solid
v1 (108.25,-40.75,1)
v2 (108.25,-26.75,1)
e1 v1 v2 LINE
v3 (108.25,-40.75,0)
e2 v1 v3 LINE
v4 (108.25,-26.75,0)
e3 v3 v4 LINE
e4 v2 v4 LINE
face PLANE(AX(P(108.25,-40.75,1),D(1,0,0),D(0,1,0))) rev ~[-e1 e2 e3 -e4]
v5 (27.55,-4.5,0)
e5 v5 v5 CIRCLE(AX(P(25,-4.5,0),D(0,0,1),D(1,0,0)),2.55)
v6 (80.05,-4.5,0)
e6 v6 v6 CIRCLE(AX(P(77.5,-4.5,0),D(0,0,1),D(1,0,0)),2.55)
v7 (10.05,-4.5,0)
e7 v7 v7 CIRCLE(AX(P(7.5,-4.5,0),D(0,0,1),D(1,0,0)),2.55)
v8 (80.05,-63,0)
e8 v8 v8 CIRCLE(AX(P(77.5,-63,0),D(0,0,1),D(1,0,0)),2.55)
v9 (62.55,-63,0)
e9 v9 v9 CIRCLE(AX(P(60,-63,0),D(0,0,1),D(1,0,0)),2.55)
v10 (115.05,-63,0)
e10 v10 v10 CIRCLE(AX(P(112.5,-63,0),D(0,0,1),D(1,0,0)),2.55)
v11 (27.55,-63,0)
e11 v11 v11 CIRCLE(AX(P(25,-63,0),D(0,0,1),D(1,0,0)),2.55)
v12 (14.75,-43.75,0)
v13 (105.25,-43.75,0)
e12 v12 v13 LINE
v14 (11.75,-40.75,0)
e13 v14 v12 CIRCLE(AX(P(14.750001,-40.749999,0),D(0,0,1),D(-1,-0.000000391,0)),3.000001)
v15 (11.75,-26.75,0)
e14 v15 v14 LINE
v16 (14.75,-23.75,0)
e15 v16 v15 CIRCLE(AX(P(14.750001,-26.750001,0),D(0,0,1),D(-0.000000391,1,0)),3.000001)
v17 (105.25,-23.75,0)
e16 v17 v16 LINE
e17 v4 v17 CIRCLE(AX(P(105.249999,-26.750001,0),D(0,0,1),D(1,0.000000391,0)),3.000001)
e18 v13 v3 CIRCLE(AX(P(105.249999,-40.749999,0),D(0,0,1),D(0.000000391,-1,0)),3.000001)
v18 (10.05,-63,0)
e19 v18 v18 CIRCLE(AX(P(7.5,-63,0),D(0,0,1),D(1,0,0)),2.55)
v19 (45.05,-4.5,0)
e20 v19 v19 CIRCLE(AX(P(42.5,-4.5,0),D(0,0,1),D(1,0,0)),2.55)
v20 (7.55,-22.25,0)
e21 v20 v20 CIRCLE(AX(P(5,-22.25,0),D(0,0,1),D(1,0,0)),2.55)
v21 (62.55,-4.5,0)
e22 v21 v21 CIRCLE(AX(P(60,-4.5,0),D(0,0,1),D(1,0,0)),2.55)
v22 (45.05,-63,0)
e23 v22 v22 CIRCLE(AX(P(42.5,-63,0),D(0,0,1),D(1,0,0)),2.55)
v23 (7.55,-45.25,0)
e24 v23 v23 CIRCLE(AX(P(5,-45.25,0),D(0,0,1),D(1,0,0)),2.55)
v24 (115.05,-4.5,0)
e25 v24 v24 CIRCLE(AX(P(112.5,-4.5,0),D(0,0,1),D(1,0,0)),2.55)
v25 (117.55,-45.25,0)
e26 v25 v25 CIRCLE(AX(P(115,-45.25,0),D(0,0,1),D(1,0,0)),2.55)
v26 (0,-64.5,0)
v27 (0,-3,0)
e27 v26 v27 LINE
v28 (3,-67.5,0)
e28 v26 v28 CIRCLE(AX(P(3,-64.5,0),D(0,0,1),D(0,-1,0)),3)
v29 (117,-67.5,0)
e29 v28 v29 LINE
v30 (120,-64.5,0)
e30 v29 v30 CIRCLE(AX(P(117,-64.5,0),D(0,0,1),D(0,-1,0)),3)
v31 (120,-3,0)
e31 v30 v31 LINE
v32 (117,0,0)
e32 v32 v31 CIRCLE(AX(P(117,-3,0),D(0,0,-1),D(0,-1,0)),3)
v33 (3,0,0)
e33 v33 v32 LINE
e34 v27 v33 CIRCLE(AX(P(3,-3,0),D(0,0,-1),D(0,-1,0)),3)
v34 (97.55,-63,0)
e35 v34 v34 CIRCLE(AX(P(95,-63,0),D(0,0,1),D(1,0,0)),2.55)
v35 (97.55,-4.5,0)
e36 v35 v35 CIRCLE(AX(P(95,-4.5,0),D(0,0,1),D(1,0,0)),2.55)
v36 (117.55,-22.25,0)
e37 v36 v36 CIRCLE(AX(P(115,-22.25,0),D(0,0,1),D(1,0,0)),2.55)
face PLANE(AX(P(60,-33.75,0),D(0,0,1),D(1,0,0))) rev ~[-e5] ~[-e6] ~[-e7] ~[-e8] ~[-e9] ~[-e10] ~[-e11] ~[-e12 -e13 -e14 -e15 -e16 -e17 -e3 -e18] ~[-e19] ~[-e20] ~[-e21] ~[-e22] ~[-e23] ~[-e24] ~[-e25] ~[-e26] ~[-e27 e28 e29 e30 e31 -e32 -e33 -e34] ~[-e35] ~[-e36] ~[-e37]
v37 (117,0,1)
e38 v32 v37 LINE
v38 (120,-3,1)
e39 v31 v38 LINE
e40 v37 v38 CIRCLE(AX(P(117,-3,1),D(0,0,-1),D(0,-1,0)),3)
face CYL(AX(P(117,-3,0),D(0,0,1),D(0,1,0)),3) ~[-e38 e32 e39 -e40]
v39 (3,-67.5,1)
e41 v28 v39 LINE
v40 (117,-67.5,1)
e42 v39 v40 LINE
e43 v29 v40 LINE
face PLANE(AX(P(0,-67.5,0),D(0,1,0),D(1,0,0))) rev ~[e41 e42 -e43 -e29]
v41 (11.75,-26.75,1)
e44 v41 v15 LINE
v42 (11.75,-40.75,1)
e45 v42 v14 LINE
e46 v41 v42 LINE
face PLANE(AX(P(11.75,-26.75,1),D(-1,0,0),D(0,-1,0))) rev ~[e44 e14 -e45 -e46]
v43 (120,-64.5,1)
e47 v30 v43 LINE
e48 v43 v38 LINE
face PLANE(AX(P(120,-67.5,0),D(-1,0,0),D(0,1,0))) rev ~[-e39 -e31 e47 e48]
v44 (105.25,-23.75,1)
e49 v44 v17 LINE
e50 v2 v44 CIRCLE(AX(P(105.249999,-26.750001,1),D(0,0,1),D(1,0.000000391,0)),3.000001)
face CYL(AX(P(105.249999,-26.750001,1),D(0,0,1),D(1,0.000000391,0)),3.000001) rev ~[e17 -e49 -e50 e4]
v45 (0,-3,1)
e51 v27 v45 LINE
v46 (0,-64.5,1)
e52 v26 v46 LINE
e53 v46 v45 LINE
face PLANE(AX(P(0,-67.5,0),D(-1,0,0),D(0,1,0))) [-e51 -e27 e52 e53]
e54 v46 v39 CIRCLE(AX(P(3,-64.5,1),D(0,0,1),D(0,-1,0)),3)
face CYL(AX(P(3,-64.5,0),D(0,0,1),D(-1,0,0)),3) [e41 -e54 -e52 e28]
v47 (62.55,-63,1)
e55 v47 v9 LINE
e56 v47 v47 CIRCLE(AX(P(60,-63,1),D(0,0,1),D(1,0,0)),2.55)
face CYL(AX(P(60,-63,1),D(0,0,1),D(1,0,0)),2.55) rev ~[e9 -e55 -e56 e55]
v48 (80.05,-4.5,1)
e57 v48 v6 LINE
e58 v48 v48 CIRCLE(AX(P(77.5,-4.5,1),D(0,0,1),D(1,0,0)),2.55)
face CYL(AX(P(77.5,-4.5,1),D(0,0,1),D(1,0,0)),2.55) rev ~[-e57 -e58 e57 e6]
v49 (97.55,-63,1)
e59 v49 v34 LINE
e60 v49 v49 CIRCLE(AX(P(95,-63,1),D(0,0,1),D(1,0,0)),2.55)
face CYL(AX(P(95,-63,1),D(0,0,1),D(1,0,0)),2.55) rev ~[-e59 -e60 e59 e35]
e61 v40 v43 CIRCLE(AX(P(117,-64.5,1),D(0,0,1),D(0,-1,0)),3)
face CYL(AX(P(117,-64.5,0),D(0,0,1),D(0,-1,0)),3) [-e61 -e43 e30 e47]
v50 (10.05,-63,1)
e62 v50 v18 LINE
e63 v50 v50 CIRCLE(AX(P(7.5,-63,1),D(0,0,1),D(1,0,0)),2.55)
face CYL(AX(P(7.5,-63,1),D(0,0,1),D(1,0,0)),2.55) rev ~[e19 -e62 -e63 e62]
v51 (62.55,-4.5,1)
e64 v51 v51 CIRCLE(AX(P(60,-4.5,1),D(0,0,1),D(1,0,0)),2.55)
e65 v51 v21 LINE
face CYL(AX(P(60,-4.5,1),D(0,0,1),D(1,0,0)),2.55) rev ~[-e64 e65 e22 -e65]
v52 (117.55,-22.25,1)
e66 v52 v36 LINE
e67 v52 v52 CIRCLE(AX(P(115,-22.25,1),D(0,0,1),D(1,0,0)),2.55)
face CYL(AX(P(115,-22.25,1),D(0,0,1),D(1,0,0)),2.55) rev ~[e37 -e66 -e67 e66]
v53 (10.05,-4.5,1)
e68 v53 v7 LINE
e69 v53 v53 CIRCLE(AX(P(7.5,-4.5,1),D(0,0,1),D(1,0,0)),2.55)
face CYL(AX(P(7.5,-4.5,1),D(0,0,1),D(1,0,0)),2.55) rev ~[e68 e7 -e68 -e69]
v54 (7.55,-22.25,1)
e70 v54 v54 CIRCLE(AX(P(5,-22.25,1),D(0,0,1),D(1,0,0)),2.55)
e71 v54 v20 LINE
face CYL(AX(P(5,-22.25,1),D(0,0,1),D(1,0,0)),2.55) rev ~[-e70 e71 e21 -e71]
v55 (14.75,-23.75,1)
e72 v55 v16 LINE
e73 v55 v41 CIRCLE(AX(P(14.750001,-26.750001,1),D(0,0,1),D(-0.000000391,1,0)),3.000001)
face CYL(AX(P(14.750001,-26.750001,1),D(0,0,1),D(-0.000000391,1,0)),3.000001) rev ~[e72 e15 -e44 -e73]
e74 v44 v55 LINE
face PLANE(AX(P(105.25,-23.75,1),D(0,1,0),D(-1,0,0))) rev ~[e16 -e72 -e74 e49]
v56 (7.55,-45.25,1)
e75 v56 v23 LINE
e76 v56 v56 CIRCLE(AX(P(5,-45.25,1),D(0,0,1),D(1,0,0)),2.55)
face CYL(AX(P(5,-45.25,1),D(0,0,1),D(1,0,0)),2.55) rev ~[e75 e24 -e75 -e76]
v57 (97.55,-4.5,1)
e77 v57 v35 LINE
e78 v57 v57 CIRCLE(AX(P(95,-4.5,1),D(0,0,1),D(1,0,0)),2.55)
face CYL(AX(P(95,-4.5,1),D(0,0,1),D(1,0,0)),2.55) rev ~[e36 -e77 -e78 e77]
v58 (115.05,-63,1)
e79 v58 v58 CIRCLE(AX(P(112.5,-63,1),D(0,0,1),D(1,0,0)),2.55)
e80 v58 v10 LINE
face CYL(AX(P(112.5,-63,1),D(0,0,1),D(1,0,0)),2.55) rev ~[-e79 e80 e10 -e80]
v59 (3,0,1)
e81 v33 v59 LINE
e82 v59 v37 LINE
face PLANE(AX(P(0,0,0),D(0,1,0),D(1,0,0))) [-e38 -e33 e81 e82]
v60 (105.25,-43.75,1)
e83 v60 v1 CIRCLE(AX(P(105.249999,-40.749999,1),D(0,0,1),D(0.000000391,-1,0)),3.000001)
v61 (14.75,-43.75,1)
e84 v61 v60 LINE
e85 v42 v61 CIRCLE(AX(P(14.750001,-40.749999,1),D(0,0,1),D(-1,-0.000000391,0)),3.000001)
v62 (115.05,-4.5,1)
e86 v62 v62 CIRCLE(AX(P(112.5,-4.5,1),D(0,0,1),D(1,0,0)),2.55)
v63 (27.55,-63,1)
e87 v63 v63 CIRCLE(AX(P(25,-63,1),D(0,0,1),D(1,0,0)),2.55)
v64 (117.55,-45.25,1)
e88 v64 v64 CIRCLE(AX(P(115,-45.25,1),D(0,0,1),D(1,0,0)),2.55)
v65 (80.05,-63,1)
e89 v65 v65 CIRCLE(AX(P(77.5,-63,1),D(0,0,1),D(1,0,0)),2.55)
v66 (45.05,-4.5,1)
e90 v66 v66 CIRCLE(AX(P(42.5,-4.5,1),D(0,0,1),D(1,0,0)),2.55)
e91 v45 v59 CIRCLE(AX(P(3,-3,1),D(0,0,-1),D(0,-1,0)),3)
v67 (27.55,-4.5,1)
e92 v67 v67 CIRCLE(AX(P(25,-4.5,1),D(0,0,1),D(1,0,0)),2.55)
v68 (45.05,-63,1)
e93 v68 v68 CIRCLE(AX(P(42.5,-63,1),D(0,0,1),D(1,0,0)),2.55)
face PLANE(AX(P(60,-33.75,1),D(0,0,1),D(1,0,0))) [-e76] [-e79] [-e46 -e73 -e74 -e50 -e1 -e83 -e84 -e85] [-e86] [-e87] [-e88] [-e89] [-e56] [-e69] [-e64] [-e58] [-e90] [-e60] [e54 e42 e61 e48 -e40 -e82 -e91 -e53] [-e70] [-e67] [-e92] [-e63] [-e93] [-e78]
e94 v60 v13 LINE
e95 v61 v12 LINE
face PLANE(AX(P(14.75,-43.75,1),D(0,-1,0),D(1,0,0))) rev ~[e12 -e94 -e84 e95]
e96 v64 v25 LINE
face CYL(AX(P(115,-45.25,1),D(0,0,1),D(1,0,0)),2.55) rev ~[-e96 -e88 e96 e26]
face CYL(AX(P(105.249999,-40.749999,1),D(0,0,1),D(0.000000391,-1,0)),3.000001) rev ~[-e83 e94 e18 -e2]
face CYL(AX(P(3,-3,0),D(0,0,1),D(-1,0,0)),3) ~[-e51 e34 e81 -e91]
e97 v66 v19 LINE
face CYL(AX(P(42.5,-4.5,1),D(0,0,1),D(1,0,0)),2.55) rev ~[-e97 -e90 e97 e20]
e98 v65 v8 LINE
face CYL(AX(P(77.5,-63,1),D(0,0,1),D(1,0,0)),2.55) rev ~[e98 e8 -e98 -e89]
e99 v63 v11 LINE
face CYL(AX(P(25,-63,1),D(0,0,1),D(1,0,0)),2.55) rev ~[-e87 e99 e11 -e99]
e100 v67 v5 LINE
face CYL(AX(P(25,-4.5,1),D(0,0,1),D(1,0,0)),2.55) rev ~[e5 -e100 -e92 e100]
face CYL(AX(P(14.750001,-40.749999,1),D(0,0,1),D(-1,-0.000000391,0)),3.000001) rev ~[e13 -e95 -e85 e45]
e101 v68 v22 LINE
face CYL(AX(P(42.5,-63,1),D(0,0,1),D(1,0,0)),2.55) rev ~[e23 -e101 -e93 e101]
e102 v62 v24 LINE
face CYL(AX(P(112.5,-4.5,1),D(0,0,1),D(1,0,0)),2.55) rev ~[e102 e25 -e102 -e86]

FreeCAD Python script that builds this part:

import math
import FreeCAD as App
import Part
import Sketcher

V = App.Vector


def edges_at(feature, points):
    """Names of the edges that pass closest to the given points."""
    edges = feature.Shape.Edges
    near = lambda p: min(range(len(edges)), key=lambda i: edges[i].distToShape(Part.Vertex(*p))[0])
    return sorted({f"Edge{near(p) + 1}" for p in points})


def add_polygon(sketch, points):
    """Adds a closed chain of lines whose ends are joined by coincident constraints."""
    first, n = sketch.GeometryCount, len(points)
    for a, b in zip(points, points[1:] + points[:1]):
        sketch.addGeometry(Part.LineSegment(App.Vector(*a, 0), App.Vector(*b, 0)), False)
    for i in range(n):
        sketch.addConstraint(Sketcher.Constraint("Coincident", first + i, 2, first + (i + 1) % n, 1))

doc = App.newDocument("Part")
body = doc.addObject("PartDesign::Body", "Body")

sketch1 = body.newObject("Sketcher::SketchObject", "Sketch")
sketch1.AttachmentSupport = (doc.getObject("XY_Plane"), [""])
sketch1.MapMode = "FlatFace"
add_polygon(sketch1, [(0, 0), (0, -67.5), (120, -67.5), (120, 0)])
sketch1.addConstraint([
    Sketcher.Constraint("Vertical", 0),
    Sketcher.Constraint("Horizontal", 1),
    Sketcher.Constraint("Vertical", 2),
    Sketcher.Constraint("Horizontal", 3),
    Sketcher.Constraint("Coincident", 3, 2, -1, 1),
    Sketcher.Constraint("DistanceX", 1, 1, 1, 2, 120.0),
    Sketcher.Constraint("DistanceY", 0, 2, 0, 1, 67.5),
])
pad1 = body.newObject("PartDesign::Pad", "Pad")
pad1.Profile = sketch1
pad1.Length = 1

sketch2 = body.newObject("Sketcher::SketchObject", "Sketch001")
sketch2.AttachmentSupport = (doc.getObject("XY_Plane"), [""])
sketch2.MapMode = "FlatFace"
sketch2.AttachmentOffset = App.Placement(V(0, 0, 1), App.Rotation())
sketch2.addGeometry([
    Part.LineSegment(V(105.25, -23.75, 0), V(14.75, -23.75, 0)),
    Part.ArcOfCircle(Part.Circle(V(14.750001, -26.750001, 0), V(0, 0, 1), 3.000001), math.radians(90.000022), math.radians(179.999978)),
    Part.LineSegment(V(11.75, -26.75, 0), V(11.75, -40.75, 0)),
    Part.ArcOfCircle(Part.Circle(V(14.750001, -40.749999, 0), V(0, 0, 1), 3.000001), math.radians(-179.999978), math.radians(-90.000022)),
    Part.LineSegment(V(14.75, -43.75, 0), V(105.25, -43.75, 0)),
    Part.ArcOfCircle(Part.Circle(V(105.249999, -40.749999, 0), V(0, 0, 1), 3.000001), math.radians(-89.999978), math.radians(-0.000022)),
    Part.LineSegment(V(108.25, -40.75, 0), V(108.25, -26.75, 0)),
    Part.ArcOfCircle(Part.Circle(V(105.249999, -26.750001, 0), V(0, 0, 1), 3.000001), math.radians(0.000022), math.radians(89.999978)),
    Part.Circle(V(7.5, -4.5, 0), V(0, 0, 1), 2.55),
    Part.Circle(V(7.5, -63, 0), V(0, 0, 1), 2.55),
    Part.Circle(V(25, -4.5, 0), V(0, 0, 1), 2.55),
    Part.Circle(V(25, -63, 0), V(0, 0, 1), 2.55),
    Part.Circle(V(42.5, -4.5, 0), V(0, 0, 1), 2.55),
    Part.Circle(V(42.5, -63, 0), V(0, 0, 1), 2.55),
    Part.Circle(V(60, -4.5, 0), V(0, 0, 1), 2.55),
    Part.Circle(V(60, -63, 0), V(0, 0, 1), 2.55),
    Part.Circle(V(77.5, -4.5, 0), V(0, 0, 1), 2.55),
    Part.Circle(V(77.5, -63, 0), V(0, 0, 1), 2.55),
    Part.Circle(V(95, -4.5, 0), V(0, 0, 1), 2.55),
    Part.Circle(V(95, -63, 0), V(0, 0, 1), 2.55),
    Part.Circle(V(112.5, -4.5, 0), V(0, 0, 1), 2.55),
    Part.Circle(V(112.5, -63, 0), V(0, 0, 1), 2.55),
], False)
sketch2.addConstraint([
    Sketcher.Constraint("Tangent", 0, 2, 1, 1),
    Sketcher.Constraint("Tangent", 1, 2, 2, 1),
    Sketcher.Constraint("Tangent", 2, 2, 3, 1),
    Sketcher.Constraint("Tangent", 3, 2, 4, 1),
    Sketcher.Constraint("Tangent", 4, 2, 5, 1),
    Sketcher.Constraint("Tangent", 5, 2, 6, 1),
    Sketcher.Constraint("Tangent", 6, 2, 7, 1),
    Sketcher.Constraint("Tangent", 7, 2, 0, 1),
    Sketcher.Constraint("Horizontal", 0),
    Sketcher.Constraint("Vertical", 2),
    Sketcher.Constraint("Horizontal", 4),
    Sketcher.Constraint("Vertical", 6),
    Sketcher.Constraint("Equal", 1, 3),
    Sketcher.Constraint("Equal", 3, 5),
    Sketcher.Constraint("Equal", 5, 7),
    Sketcher.Constraint("Equal", 8, 9),
    Sketcher.Constraint("Equal", 9, 10),
    Sketcher.Constraint("Equal", 10, 11),
    Sketcher.Constraint("Equal", 11, 12),
    Sketcher.Constraint("Equal", 12, 13),
    Sketcher.Constraint("Equal", 13, 14),
    Sketcher.Constraint("Equal", 14, 15),
    Sketcher.Constraint("Equal", 15, 16),
    Sketcher.Constraint("Equal", 16, 17),
    Sketcher.Constraint("Equal", 17, 18),
    Sketcher.Constraint("Equal", 18, 19),
    Sketcher.Constraint("Equal", 19, 20),
    Sketcher.Constraint("Equal", 20, 21),
    Sketcher.Constraint("Horizontal", 8, 3, 10, 3),
    Sketcher.Constraint("Horizontal", 9, 3, 11, 3),
    Sketcher.Constraint("Horizontal", 10, 3, 12, 3),
    Sketcher.Constraint("Horizontal", 11, 3, 13, 3),
    Sketcher.Constraint("Horizontal", 12, 3, 14, 3),
    Sketcher.Constraint("Horizontal", 13, 3, 15, 3),
    Sketcher.Constraint("Horizontal", 14, 3, 16, 3),
    Sketcher.Constraint("Horizontal", 15, 3, 17, 3),
    Sketcher.Constraint("Horizontal", 16, 3, 18, 3),
    Sketcher.Constraint("Horizontal", 17, 3, 19, 3),
    Sketcher.Constraint("Horizontal", 18, 3, 20, 3),
    Sketcher.Constraint("Horizontal", 19, 3, 21, 3),
    Sketcher.Constraint("Vertical", 8, 3, 9, 3),
    Sketcher.Constraint("Vertical", 10, 3, 11, 3),
    Sketcher.Constraint("Vertical", 12, 3, 13, 3),
    Sketcher.Constraint("Vertical", 14, 3, 15, 3),
    Sketcher.Constraint("Vertical", 16, 3, 17, 3),
    Sketcher.Constraint("Vertical", 18, 3, 19, 3),
    Sketcher.Constraint("Vertical", 20, 3, 21, 3),
    Sketcher.Constraint("Radius", 1, 3.000001),
    Sketcher.Constraint("Diameter", 8, 5.1),
    Sketcher.Constraint("DistanceY", 2, 2, 2, 1, 14.0),
    Sketcher.Constraint("DistanceX", 0, 2, 0, 1, 90.5),
    Sketcher.Constraint("DistanceY", 9, 3, -1, 1, 63.0),
    Sketcher.Constraint("DistanceX", -1, 1, 10, 3, 25.0),
    Sketcher.Constraint("DistanceX", -1, 1, 14, 3, 60.0),
    Sketcher.Constraint("DistanceX", -1, 1, 18, 3, 95.0),
    Sketcher.Constraint("DistanceX", 8, 3, 12, 3, 35.0),
    Sketcher.Constraint("DistanceX", 12, 3, 16, 3, 35.0),
    Sketcher.Constraint("DistanceX", 16, 3, 20, 3, 35.0),
    Sketcher.Constraint("DistanceX", -1, 1, 8, 3, 7.5),
    Sketcher.Constraint("DistanceY", 8, 3, -1, 1, 4.5),
    Sketcher.Constraint("DistanceX", -1, 1, 1, 3, 14.750001),
    Sketcher.Constraint("DistanceY", 1, 3, -1, 1, 26.750001),
])
pocket1 = body.newObject("PartDesign::Pocket", "Pocket")
pocket1.Profile = sketch2
pocket1.Length = 25
doc.recompute()

fillet = body.newObject("PartDesign::Fillet", "Fillet")
fillet.Base = (pocket1, edges_at(pocket1, [
    (0, 0, 0.5),
    (0, -67.5, 0.5),
    (120, 0, 0.5),
    (120, -67.5, 0.5),
]))
fillet.Radius = 3

sketch3 = body.newObject("Sketcher::SketchObject", "Sketch002")
sketch3.AttachmentSupport = (doc.getObject("XY_Plane"), [""])
sketch3.MapMode = "FlatFace"
sketch3.AttachmentOffset = App.Placement(V(0, 0, 1), App.Rotation())
sketch3.addGeometry([
    Part.Circle(V(115, -45.25, 0), V(0, 0, 1), 2.55),
    Part.Circle(V(115, -22.25, 0), V(0, 0, 1), 2.55),
    Part.Circle(V(5, -45.25, 0), V(0, 0, 1), 2.55),
    Part.Circle(V(5, -22.25, 0), V(0, 0, 1), 2.55),
], False)
sketch3.addConstraint([
    Sketcher.Constraint("Equal", 0, 1),
    Sketcher.Constraint("Equal", 1, 2),
    Sketcher.Constraint("Equal", 2, 3),
    Sketcher.Constraint("Horizontal", 0, 3, 2, 3),
    Sketcher.Constraint("Horizontal", 1, 3, 3, 3),
    Sketcher.Constraint("Vertical", 0, 3, 1, 3),
    Sketcher.Constraint("Vertical", 2, 3, 3, 3),
    Sketcher.Constraint("Diameter", 0, 5.1),
    Sketcher.Constraint("DistanceX", -1, 1, 0, 3, 115.0),
    Sketcher.Constraint("DistanceX", -1, 1, 2, 3, 5.0),
    Sketcher.Constraint("DistanceY", 0, 3, 1, 3, 23.0),
    Sketcher.Constraint("DistanceY", 0, 3, -1, 1, 45.25),
])
pocket2 = body.newObject("PartDesign::Pocket", "Pocket001")
pocket2.Profile = sketch3
pocket2.Length = 25

doc.recompute()
